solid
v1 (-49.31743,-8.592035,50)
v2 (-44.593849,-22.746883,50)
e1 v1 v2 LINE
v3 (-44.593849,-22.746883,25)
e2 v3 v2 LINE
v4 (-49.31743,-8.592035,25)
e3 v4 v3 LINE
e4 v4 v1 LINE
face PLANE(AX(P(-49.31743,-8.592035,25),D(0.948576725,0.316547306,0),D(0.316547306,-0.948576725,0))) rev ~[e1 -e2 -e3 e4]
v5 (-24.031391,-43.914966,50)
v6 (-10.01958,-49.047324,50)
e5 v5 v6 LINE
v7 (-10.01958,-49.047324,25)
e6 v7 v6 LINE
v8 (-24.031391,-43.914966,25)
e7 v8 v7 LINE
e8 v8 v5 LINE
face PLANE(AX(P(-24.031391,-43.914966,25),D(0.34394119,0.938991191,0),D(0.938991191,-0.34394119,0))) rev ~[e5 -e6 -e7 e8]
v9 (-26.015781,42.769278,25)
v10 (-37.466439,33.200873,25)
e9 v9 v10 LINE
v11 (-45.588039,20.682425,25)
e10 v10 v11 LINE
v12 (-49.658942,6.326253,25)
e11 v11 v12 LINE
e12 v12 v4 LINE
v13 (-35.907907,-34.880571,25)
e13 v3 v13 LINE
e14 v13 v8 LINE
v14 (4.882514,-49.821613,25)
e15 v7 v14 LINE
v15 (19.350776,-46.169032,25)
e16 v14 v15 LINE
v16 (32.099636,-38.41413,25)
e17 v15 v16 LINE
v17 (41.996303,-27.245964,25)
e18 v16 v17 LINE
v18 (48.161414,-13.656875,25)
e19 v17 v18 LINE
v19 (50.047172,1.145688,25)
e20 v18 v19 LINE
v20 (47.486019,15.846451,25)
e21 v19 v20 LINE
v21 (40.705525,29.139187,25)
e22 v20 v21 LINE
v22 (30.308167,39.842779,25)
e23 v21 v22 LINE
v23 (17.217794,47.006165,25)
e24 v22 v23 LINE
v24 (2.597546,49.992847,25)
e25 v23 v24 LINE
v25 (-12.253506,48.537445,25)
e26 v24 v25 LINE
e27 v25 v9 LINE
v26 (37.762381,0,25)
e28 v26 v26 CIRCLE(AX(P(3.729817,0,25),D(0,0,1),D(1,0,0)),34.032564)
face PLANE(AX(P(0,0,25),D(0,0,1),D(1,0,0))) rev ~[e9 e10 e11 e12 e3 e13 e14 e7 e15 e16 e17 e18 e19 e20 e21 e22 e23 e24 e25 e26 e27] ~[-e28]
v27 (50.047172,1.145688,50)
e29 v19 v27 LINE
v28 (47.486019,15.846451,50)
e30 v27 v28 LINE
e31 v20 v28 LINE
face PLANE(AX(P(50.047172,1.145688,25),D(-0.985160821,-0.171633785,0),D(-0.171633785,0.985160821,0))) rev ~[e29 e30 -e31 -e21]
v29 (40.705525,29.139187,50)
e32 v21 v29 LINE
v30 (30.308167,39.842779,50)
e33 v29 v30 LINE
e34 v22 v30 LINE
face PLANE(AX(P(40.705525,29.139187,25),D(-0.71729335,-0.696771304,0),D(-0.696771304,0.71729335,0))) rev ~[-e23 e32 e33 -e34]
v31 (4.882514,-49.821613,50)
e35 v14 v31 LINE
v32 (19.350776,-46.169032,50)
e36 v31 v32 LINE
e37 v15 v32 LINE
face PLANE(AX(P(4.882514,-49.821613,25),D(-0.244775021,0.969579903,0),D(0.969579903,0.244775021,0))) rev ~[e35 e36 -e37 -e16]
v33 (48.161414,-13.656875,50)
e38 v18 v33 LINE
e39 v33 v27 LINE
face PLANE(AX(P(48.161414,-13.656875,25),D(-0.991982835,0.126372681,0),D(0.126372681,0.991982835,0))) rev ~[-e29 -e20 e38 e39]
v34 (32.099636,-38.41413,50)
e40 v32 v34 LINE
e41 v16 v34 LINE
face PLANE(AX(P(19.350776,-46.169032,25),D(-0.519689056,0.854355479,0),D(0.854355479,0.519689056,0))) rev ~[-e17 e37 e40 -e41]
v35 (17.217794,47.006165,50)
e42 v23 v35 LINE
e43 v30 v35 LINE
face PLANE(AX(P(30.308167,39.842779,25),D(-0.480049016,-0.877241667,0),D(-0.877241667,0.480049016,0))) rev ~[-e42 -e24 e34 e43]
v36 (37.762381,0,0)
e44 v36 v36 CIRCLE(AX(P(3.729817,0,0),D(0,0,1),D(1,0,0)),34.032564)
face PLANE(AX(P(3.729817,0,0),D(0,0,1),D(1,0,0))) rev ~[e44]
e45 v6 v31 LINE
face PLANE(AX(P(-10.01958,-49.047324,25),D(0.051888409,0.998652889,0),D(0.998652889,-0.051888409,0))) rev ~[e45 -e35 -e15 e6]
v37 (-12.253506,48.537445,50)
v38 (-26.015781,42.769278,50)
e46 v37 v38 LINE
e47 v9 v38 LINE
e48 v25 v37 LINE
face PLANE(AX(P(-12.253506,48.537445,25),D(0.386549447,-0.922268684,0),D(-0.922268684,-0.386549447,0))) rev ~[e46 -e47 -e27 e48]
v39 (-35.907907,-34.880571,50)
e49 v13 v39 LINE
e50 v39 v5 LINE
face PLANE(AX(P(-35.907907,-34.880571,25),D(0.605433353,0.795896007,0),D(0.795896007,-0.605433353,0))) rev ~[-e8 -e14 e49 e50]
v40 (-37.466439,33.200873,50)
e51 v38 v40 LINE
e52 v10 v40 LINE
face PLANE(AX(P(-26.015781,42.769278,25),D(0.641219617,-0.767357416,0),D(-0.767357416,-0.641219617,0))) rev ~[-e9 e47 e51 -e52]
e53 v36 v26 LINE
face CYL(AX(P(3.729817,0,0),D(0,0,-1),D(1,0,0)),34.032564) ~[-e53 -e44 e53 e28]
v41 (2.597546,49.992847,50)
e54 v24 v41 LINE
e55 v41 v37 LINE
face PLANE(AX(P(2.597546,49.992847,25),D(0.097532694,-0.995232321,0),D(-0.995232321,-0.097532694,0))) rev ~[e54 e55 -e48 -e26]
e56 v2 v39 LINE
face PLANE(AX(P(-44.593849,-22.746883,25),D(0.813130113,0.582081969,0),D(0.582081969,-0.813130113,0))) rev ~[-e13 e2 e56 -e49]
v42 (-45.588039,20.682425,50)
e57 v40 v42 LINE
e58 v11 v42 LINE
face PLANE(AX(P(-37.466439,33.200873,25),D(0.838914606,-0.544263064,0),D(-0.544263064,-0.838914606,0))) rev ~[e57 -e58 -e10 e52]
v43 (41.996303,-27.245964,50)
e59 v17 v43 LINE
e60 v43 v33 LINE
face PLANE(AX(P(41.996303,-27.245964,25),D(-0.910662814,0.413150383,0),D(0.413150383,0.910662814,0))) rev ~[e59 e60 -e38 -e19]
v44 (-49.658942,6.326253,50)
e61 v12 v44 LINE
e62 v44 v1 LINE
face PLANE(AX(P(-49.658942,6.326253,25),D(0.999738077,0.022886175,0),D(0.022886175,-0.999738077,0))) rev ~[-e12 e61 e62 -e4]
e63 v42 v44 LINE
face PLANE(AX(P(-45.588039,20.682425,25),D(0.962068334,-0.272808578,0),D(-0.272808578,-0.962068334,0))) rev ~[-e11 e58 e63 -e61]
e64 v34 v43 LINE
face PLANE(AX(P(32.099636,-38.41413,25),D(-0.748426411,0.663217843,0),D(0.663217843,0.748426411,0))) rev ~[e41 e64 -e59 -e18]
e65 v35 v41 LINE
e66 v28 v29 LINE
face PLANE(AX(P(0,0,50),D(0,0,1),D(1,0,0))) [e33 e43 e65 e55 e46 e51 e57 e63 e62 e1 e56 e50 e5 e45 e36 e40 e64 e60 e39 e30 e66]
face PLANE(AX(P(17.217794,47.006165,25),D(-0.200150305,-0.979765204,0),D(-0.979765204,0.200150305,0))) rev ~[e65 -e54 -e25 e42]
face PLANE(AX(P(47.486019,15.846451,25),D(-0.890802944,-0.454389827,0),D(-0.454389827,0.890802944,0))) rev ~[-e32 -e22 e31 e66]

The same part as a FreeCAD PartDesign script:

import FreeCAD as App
import Part
import Sketcher


def add_polygon(sketch, points):
    """Adds a closed chain of lines whose ends are joined by coincident constraints."""
    first, n = sketch.GeometryCount, len(points)
    for a, b in zip(points, points[1:] + points[:1]):
        sketch.addGeometry(Part.LineSegment(App.Vector(*a, 0), App.Vector(*b, 0)), False)
    for i in range(n):
        sketch.addConstraint(Sketcher.Constraint("Coincident", first + i, 2, first + (i + 1) % n, 1))

doc = App.newDocument("Part")
body = doc.addObject("PartDesign::Body", "Body")

sketch1 = body.newObject("Sketcher::SketchObject", "Sketch")
sketch1.AttachmentSupport = (doc.getObject("XY_Plane"), [""])
sketch1.MapMode = "FlatFace"
sketch1.addGeometry(Part.Circle(App.Vector(4, 0, 0), App.Vector(0, 0, 1), 34), False)
sketch1.addConstraint(Sketcher.Constraint("PointOnObject", 0, 3, -1))
sketch1.addConstraint(Sketcher.Constraint("Diameter", 0, 68.065128))
sketch1.addConstraint(Sketcher.Constraint("DistanceX", -1, 1, 0, 3, 3.729817))
pad1 = body.newObject("PartDesign::Pad", "Pad")
pad1.Profile = sketch1
pad1.Length = 25

sketch2 = body.newObject("Sketcher::SketchObject", "Sketch001")
sketch2.AttachmentSupport = (doc.getObject("XY_Plane"), [""])
sketch2.MapMode = "FlatFace"
sketch2.AttachmentOffset = App.Placement(App.Vector(0, 0, 25), App.Rotation())
add_polygon(sketch2, [(3, 50), (-12, 49), (-26, 43), (-37, 33), (-46, 21), (-50, 6), (-49, -9), (-45, -23), (-36, -35), (-24, -44), (-10, -49), (5, -50), (19, -46), (32, -38), (42, -27), (48, -14), (50, 1), (47, 16), (41, 29), (30, 40), (17, 47)])
sketch2.addConstraint(Sketcher.Constraint("Equal", 0, 1))
sketch2.addConstraint(Sketcher.Constraint("Equal", 1, 2))
sketch2.addConstraint(Sketcher.Constraint("Equal", 2, 3))
sketch2.addConstraint(Sketcher.Constraint("Equal", 3, 4))
sketch2.addConstraint(Sketcher.Constraint("Equal", 4, 5))
sketch2.addConstraint(Sketcher.Constraint("Equal", 5, 6))
sketch2.addConstraint(Sketcher.Constraint("Equal", 6, 7))
sketch2.addConstraint(Sketcher.Constraint("Equal", 7, 8))
sketch2.addConstraint(Sketcher.Constraint("Equal", 8, 9))
sketch2.addConstraint(Sketcher.Constraint("Equal", 9, 10))
sketch2.addConstraint(Sketcher.Constraint("Equal", 10, 11))
sketch2.addConstraint(Sketcher.Constraint("Equal", 11, 12))
sketch2.addConstraint(Sketcher.Constraint("Equal", 12, 13))
sketch2.addConstraint(Sketcher.Constraint("Equal", 13, 14))
sketch2.addConstraint(Sketcher.Constraint("Equal", 14, 15))
sketch2.addConstraint(Sketcher.Constraint("Equal", 15, 16))
sketch2.addConstraint(Sketcher.Constraint("Equal", 16, 17))
sketch2.addConstraint(Sketcher.Constraint("Equal", 17, 18))
sketch2.addConstraint(Sketcher.Constraint("Equal", 18, 19))
sketch2.addConstraint(Sketcher.Constraint("Equal", 19, 20))
sketch2.addConstraint(Sketcher.Constraint("DistanceY", 8, 2, 13, 2, 16.669002))
sketch2.addConstraint(Sketcher.Constraint("DistanceX", 3, 2, 2, 2, 8.1216))
sketch2.addConstraint(Sketcher.Constraint("DistanceX", 10, 2, 14, 2, 43.2789))
sketch2.addConstraint(Sketcher.Constraint("DistanceY", 10, 2, 15, 2, 50.967301))
sketch2.addConstraint(Sketcher.Constraint("DistanceY", 15, 2, 17, 2, 27.993499))
sketch2.addConstraint(Sketcher.Constraint("DistanceX", 0, 2, 19, 2, 29.4713))
sketch2.addConstraint(Sketcher.Constraint("DistanceY", 0, 2, 20, 2, 1.455402))
sketch2.addConstraint(Sketcher.Constraint("DistanceX", 1, 2, -1, 1, 26.015781))
sketch2.addConstraint(Sketcher.Constraint("DistanceX", 2, 2, -1, 1, 37.466439))
sketch2.addConstraint(Sketcher.Constraint("DistanceX", 5, 2, -1, 1, 49.31743))
sketch2.addConstraint(Sketcher.Constraint("DistanceX", 6, 2, -1, 1, 44.593849))
sketch2.addConstraint(Sketcher.Constraint("DistanceY", 7, 2, -1, 1, 34.880571))
sketch2.addConstraint(Sketcher.Constraint("DistanceX", 8, 2, -1, 1, 24.031391))
sketch2.addConstraint(Sketcher.Constraint("DistanceX", 9, 2, -1, 1, 10.01958))
sketch2.addConstraint(Sketcher.Constraint("DistanceY", 12, 2, -1, 1, 38.41413))
sketch2.addConstraint(Sketcher.Constraint("DistanceX", -1, 1, 16, 2, 47.486019))
sketch2.addConstraint(Sketcher.Constraint("DistanceY", -1, 1, 16, 2, 15.846451))
sketch2.addConstraint(Sketcher.Constraint("DistanceY", -1, 1, 18, 2, 39.842779))
sketch2.addConstraint(Sketcher.Constraint("DistanceY", 2, 2, 0, 2, 15.336572))
sketch2.addConstraint(Sketcher.Constraint("DistanceY", 3, 2, 2, 2, 12.518448))
sketch2.addConstraint(Sketcher.Constraint("DistanceY", 4, 2, 3, 2, 14.356172))
sketch2.addConstraint(Sketcher.Constraint("DistanceX", 6, 2, 7, 2, 8.685942))
pad2 = body.newObject("PartDesign::Pad", "Pad001")
pad2.Profile = sketch2
pad2.Length = 25

doc.recompute()
